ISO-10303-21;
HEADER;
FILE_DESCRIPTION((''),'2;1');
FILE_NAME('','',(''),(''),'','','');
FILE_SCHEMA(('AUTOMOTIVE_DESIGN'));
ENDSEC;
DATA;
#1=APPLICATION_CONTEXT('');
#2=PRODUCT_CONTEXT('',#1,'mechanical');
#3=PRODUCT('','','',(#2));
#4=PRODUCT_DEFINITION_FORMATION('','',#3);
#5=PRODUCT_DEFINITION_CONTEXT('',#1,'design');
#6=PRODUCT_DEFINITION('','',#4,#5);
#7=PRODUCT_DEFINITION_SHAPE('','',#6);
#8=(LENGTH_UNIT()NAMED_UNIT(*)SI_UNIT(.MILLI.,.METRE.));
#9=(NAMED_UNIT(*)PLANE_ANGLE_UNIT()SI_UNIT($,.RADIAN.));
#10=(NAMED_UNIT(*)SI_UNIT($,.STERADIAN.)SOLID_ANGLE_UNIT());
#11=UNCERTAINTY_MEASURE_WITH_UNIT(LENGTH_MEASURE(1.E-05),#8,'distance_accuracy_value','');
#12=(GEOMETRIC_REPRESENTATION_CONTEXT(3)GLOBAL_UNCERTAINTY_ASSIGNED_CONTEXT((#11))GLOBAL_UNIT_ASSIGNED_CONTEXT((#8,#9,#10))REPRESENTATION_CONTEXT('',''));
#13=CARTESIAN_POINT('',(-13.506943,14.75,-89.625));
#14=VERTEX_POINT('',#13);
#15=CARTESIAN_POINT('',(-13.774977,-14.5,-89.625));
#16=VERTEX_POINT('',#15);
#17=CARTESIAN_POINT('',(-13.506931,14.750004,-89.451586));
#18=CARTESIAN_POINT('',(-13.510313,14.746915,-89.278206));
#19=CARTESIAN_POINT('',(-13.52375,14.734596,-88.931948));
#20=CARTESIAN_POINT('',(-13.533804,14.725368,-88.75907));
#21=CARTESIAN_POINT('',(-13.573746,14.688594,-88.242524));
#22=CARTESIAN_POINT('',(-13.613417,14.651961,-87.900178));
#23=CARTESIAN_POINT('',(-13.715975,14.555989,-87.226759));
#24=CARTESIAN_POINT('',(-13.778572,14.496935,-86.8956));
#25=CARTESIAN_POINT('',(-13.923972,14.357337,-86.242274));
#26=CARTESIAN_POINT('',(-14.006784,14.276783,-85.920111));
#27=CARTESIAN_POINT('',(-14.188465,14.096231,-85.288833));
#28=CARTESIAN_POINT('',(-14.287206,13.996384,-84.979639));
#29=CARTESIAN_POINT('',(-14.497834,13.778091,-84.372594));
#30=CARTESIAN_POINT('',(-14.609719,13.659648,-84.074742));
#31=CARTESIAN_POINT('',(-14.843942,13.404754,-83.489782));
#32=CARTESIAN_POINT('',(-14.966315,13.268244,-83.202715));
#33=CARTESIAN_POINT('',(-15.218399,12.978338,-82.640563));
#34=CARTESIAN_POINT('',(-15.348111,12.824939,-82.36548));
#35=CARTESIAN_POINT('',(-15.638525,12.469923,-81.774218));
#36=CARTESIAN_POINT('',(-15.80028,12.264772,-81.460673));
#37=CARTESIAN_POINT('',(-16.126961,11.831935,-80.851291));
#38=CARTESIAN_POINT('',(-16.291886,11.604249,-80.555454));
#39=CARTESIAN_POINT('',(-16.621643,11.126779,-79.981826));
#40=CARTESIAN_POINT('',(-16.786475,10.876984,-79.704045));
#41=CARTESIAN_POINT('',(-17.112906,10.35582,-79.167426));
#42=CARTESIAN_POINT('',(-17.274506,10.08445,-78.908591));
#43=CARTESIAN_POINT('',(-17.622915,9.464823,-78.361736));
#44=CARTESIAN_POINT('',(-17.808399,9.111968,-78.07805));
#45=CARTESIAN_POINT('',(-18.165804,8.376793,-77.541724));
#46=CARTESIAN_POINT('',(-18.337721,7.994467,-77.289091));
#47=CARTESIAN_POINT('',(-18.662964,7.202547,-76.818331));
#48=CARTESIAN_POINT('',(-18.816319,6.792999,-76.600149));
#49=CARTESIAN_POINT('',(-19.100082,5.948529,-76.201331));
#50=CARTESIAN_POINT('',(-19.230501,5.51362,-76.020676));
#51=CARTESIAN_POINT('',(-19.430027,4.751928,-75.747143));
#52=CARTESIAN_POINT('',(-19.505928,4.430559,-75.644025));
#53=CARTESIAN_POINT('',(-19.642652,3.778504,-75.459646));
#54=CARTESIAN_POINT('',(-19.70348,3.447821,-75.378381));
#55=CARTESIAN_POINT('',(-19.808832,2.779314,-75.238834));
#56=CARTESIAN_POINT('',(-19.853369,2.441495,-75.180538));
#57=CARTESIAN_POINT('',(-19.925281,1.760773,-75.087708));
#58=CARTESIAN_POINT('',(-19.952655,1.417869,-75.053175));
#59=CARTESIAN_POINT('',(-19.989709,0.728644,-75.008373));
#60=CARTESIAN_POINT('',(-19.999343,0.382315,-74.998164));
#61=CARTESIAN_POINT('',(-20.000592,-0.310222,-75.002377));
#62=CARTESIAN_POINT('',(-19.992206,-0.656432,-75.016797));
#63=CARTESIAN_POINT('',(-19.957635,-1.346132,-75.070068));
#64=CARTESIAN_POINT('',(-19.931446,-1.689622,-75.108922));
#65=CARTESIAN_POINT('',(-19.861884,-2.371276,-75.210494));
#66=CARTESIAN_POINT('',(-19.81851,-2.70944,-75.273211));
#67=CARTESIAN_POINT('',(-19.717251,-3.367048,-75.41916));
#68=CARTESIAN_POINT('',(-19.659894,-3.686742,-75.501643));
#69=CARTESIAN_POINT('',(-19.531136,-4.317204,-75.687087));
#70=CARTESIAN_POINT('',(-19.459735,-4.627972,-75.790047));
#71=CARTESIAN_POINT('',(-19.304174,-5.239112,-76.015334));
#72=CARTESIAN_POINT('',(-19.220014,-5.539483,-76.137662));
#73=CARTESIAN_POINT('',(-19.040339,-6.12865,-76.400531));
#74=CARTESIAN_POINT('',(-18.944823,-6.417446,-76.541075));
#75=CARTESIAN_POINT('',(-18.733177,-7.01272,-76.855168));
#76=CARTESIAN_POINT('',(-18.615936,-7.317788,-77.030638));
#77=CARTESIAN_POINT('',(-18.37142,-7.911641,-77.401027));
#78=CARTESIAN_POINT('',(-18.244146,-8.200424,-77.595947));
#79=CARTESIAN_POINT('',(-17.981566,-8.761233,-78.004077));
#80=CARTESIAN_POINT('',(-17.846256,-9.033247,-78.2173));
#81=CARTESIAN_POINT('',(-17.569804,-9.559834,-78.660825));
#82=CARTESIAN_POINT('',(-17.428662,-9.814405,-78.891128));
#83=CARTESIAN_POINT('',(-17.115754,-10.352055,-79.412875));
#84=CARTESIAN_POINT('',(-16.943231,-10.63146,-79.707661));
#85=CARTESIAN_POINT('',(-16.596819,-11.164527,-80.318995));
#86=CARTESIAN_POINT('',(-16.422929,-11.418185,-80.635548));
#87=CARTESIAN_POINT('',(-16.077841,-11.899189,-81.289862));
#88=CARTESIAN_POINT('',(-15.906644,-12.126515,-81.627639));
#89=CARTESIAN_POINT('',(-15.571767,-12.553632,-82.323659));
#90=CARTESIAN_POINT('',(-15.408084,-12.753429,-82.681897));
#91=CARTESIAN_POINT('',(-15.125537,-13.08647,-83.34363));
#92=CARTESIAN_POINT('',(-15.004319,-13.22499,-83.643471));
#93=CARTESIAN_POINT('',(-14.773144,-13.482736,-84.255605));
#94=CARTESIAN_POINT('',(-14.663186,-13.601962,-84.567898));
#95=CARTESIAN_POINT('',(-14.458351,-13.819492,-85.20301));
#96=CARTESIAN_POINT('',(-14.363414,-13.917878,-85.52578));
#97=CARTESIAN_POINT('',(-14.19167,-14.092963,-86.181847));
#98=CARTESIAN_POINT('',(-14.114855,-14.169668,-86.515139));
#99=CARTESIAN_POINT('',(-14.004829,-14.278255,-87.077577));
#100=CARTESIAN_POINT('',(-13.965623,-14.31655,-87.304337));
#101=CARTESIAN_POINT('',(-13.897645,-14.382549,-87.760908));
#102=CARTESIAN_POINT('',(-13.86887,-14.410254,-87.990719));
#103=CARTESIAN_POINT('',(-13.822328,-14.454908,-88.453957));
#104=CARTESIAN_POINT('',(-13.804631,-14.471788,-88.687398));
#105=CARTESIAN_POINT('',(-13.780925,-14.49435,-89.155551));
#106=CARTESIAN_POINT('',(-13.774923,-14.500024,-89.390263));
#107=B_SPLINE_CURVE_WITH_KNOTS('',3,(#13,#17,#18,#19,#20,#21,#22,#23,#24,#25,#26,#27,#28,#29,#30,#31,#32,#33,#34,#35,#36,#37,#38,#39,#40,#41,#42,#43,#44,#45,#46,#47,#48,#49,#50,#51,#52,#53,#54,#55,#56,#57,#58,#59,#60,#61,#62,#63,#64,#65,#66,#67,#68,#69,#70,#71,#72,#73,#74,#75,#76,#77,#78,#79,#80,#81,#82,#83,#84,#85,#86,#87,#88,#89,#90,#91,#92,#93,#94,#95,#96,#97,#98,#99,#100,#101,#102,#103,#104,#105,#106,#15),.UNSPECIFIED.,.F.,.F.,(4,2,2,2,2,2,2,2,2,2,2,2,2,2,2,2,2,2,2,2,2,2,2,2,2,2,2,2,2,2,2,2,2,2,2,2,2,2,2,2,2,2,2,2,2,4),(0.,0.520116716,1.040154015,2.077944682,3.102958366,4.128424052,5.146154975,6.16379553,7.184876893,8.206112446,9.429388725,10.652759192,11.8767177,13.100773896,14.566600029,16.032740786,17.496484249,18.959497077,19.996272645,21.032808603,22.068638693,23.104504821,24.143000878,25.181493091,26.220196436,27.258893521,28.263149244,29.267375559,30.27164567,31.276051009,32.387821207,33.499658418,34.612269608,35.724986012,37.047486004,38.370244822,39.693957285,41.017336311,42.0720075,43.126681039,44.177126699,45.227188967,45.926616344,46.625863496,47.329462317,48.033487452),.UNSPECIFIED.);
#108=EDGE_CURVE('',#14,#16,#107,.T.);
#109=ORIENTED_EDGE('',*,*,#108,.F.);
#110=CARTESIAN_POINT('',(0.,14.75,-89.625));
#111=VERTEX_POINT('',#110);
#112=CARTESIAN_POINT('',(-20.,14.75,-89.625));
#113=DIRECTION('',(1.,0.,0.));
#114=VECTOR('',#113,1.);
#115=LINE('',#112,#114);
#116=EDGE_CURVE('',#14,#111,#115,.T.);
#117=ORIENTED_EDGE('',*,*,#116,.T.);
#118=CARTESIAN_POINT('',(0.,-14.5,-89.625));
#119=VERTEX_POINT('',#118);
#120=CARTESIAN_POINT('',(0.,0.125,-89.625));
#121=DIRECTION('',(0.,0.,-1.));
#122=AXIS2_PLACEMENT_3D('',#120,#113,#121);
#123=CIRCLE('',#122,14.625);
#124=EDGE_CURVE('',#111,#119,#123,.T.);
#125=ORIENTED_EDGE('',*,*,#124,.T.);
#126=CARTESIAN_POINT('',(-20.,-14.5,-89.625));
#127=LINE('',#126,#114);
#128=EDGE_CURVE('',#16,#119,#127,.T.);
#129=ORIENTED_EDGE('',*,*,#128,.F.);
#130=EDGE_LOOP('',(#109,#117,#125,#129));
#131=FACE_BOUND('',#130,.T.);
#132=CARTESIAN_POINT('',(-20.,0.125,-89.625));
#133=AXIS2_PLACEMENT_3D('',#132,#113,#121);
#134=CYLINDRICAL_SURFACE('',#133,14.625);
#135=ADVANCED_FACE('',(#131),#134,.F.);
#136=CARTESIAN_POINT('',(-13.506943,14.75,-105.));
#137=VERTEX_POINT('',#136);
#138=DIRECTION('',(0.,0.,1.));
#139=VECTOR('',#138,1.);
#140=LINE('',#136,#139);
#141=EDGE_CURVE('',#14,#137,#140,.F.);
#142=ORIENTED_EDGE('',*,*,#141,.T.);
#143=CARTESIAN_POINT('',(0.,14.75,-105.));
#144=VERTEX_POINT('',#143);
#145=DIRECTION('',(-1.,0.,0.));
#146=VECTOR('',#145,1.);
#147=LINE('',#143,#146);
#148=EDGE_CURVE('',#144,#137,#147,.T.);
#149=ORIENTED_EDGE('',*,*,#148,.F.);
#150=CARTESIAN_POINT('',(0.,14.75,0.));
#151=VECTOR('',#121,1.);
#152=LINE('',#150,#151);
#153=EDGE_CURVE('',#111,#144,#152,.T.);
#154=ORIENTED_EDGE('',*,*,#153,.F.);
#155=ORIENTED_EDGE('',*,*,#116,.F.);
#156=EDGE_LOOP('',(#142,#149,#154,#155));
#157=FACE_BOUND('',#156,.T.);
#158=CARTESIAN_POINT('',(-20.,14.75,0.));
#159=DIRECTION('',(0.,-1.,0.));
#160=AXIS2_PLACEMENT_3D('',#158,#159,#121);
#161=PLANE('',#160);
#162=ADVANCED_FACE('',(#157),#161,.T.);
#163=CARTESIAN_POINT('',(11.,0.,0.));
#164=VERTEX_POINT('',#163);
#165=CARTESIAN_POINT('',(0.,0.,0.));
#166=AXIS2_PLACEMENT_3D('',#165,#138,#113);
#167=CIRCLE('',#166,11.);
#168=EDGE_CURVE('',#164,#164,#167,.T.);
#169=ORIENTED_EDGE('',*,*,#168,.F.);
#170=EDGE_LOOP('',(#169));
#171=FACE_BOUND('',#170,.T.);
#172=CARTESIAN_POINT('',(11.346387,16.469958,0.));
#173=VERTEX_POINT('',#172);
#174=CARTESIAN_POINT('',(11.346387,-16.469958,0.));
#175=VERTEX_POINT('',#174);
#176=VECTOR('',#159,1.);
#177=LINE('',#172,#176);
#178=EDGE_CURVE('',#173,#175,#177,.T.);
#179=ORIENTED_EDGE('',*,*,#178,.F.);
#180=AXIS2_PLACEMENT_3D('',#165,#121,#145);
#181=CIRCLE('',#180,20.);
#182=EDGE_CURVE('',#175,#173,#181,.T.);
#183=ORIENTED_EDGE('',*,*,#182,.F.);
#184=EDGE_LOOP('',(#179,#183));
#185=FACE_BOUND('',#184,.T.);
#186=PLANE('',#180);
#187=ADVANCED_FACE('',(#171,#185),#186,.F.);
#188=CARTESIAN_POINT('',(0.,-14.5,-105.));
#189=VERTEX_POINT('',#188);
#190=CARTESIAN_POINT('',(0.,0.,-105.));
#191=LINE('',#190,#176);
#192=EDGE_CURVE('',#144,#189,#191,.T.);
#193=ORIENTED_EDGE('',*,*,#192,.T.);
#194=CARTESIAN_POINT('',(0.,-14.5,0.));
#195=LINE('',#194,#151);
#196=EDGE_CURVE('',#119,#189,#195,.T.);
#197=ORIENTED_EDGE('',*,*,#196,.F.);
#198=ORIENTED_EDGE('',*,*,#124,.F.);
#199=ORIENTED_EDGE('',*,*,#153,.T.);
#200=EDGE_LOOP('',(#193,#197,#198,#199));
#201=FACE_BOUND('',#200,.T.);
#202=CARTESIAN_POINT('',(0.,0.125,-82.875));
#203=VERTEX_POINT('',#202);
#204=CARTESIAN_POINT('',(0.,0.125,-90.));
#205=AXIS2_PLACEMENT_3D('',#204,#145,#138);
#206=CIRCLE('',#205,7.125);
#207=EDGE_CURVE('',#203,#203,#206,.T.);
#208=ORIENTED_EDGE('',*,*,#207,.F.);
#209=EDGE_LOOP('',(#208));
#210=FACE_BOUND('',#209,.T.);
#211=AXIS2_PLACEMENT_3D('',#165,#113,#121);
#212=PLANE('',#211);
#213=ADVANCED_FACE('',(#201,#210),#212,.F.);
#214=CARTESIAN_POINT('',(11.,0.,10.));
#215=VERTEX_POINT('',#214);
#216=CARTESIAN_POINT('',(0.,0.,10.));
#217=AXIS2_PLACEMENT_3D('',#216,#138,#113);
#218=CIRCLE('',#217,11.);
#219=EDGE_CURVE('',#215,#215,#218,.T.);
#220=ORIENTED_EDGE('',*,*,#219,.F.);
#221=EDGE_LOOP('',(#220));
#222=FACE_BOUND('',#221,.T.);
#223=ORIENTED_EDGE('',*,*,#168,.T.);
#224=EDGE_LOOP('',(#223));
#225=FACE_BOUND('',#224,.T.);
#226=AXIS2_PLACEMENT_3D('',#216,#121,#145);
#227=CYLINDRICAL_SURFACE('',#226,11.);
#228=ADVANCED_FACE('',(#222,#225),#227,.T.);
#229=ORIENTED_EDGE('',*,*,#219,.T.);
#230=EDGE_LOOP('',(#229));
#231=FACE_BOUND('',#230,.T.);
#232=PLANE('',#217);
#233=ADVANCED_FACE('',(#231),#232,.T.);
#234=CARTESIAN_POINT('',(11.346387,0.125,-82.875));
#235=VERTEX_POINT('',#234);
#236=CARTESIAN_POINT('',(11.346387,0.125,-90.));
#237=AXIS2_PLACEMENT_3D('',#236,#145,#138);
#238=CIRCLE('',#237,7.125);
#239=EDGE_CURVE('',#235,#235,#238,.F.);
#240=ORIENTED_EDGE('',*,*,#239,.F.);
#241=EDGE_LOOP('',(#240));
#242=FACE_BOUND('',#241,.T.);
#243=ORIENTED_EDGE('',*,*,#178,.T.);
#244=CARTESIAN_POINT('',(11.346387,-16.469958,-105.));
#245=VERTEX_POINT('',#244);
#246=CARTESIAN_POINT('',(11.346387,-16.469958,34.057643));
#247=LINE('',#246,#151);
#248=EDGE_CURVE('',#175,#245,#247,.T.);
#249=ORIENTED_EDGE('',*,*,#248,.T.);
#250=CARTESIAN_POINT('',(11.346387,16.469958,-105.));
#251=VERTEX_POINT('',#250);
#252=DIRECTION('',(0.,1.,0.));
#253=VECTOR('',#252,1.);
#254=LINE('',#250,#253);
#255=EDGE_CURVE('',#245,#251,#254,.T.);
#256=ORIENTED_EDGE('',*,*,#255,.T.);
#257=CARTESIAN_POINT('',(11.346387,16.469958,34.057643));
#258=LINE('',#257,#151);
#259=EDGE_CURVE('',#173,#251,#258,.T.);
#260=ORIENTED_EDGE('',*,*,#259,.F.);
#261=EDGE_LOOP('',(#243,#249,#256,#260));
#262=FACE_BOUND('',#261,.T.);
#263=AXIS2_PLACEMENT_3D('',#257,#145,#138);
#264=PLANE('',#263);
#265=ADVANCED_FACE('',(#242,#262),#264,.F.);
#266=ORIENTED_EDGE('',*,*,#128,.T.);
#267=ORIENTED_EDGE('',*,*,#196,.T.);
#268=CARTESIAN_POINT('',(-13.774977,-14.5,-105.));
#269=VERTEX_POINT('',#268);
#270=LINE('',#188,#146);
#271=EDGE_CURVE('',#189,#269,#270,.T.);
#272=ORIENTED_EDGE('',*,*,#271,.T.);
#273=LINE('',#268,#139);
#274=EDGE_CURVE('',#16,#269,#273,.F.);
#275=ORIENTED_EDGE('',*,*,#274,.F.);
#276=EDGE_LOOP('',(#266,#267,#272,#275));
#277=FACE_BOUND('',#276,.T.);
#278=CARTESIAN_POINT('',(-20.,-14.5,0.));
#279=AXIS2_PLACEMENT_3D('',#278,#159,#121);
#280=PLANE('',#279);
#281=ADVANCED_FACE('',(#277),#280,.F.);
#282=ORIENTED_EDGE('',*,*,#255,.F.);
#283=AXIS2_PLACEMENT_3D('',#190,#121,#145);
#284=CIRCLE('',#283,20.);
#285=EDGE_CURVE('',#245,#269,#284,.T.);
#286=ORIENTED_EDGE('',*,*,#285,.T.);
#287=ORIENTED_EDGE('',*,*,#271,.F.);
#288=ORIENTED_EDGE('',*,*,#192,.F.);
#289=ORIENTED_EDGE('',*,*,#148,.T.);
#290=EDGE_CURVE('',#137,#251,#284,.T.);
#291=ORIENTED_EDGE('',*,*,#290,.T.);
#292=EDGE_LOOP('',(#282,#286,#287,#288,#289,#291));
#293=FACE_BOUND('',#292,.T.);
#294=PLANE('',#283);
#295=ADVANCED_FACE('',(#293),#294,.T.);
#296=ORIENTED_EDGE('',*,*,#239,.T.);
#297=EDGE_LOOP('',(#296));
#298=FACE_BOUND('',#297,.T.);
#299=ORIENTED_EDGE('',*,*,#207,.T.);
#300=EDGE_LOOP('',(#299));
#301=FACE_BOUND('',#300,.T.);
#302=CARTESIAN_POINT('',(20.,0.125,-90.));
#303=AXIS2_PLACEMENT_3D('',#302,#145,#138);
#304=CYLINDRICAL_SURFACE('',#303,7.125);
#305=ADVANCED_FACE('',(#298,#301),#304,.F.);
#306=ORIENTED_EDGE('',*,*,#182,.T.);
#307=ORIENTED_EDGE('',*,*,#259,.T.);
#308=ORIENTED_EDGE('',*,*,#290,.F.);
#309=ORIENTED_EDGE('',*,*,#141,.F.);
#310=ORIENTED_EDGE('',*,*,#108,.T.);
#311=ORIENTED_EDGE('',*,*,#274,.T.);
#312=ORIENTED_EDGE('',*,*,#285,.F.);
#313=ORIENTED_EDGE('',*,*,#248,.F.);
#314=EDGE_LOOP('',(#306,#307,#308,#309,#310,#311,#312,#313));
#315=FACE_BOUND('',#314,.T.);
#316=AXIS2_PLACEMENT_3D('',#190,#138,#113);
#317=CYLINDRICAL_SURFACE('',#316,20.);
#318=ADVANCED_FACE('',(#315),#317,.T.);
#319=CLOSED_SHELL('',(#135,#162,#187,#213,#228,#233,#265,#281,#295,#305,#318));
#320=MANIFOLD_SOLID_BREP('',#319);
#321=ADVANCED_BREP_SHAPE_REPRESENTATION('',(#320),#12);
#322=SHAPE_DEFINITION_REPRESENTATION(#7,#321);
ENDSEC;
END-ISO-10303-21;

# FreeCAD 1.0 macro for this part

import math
import FreeCAD as App
import Part
import Sketcher
from FreeCAD import Vector

doc = App.newDocument("Part")
params = doc.addObject("Spreadsheet::Sheet", "Params")
for row, (alias, value) in enumerate([
    ("sketch1_diameter", "22 mm"),
    ("pad1_length", "10 mm"),
    ("sketch2_diameter", "40 mm"),
    ("pad2_length", "105 mm"),
    ("sketch3_height", "50 mm"),
    ("sketch4_diameter", "14.25 mm"),
    ("sketch5_radius", "20 mm"),
    ("pocket3_length", "105 mm"),
], start=1):
    params.set(f"A{row}", alias)
    params.set(f"B{row}", "=" + value)
    params.setAlias(f"B{row}", alias)

body = doc.addObject("PartDesign::Body", "Body")

# Sketch on XY plane
sketch1 = doc.addObject("Sketcher::SketchObject", "Sketch")
body.addObject(sketch1)
sketch1.AttachmentSupport = (doc.XY_Plane, [""])
sketch1.MapMode = "FlatFace"
sketch1.addGeometry(Part.Circle(Vector(0, 0, 0), Vector(0, 0, 1), 11), False)
sketch1.addConstraint(Sketcher.Constraint("Coincident", 0, 3, -1, 1))
sketch1.addConstraint(Sketcher.Constraint("Diameter", 0, 22.0))
sketch1.setExpression("Constraints[1]", "Params.sketch1_diameter")
pad1 = doc.addObject("PartDesign::Pad", "Pad")
body.addObject(pad1)
pad1.Profile = sketch1
pad1.setExpression("Length", "Params.pad1_length")

# Sketch on XY plane
sketch2 = doc.addObject("Sketcher::SketchObject", "Sketch001")
body.addObject(sketch2)
sketch2.AttachmentSupport = (doc.XY_Plane, [""])
sketch2.MapMode = "FlatFace"
sketch2.addGeometry(Part.Circle(Vector(0, 0, 0), Vector(0, 0, 1), 20), False)
sketch2.addConstraint(Sketcher.Constraint("Coincident", 0, 3, -1, 1))
sketch2.addConstraint(Sketcher.Constraint("Diameter", 0, 40.0))
sketch2.setExpression("Constraints[1]", "Params.sketch2_diameter")
pad2 = doc.addObject("PartDesign::Pad", "Pad001")
body.addObject(pad2)
pad2.Profile = sketch2
pad2.setExpression("Length", "Params.pad2_length")
pad2.Reversed = True

# Sketch on YZ plane
sketch3 = doc.addObject("Sketcher::SketchObject", "Sketch002")
body.addObject(sketch3)
sketch3.AttachmentSupport = (doc.YZ_Plane, [""])
sketch3.MapMode = "FlatFace"
sketch3.addGeometry(Part.LineSegment(Vector(14.75, -139.625, 0), Vector(14.75, -89.625, 0)), False)
sketch3.addGeometry(Part.ArcOfCircle(Part.Circle(Vector(0.125, -89.625, 0), Vector(0, 0, 1), 14.625), math.radians(0), math.radians(180)), False)
sketch3.addGeometry(Part.LineSegment(Vector(-14.5, -89.625, 0), Vector(-14.5, -139.625, 0)), False)
sketch3.addGeometry(Part.LineSegment(Vector(-14.5, -139.625, 0), Vector(14.75, -139.625, 0)), False)
sketch3.addConstraint(Sketcher.Constraint("Tangent", 0, 2, 1, 1))
sketch3.addConstraint(Sketcher.Constraint("Tangent", 1, 2, 2, 1))
sketch3.addConstraint(Sketcher.Constraint("Coincident", 2, 2, 3, 1))
sketch3.addConstraint(Sketcher.Constraint("Coincident", 3, 2, 0, 1))
sketch3.addConstraint(Sketcher.Constraint("Vertical", 0))
sketch3.addConstraint(Sketcher.Constraint("Vertical", 2))
sketch3.addConstraint(Sketcher.Constraint("Horizontal", 3))
sketch3.addConstraint(Sketcher.Constraint("DistanceY", 0, 1, 0, 2, 50.0))
sketch3.addConstraint(Sketcher.Constraint("Radius", 1, 14.625))
sketch3.addConstraint(Sketcher.Constraint("DistanceX", 1, 2, -1, 1, 14.5))
sketch3.addConstraint(Sketcher.Constraint("DistanceY", 1, 3, -1, 1, 89.625))
sketch3.setExpression("Constraints[7]", "Params.sketch3_height")
pocket1 = doc.addObject("PartDesign::Pocket", "Pocket")
body.addObject(pocket1)
pocket1.Profile = sketch3
pocket1.Type = "ThroughAll"

# Sketch on YZ plane
sketch4 = doc.addObject("Sketcher::SketchObject", "Sketch003")
body.addObject(sketch4)
sketch4.AttachmentSupport = (doc.YZ_Plane, [""])
sketch4.MapMode = "FlatFace"
sketch4.addGeometry(Part.Circle(Vector(0.125, -90, 0), Vector(0, 0, 1), 7.125), False)
sketch4.addConstraint(Sketcher.Constraint("Diameter", 0, 14.25))
sketch4.addConstraint(Sketcher.Constraint("DistanceY", 0, 3, -1, 1, 90.0))
sketch4.addConstraint(Sketcher.Constraint("DistanceX", -1, 1, 0, 3, 0.125))
sketch4.setExpression("Constraints[0]", "Params.sketch4_diameter")
pocket2 = doc.addObject("PartDesign::Pocket", "Pocket001")
body.addObject(pocket2)
pocket2.Profile = sketch4
pocket2.Type = "ThroughAll"
pocket2.Reversed = True

# Sketch on XY plane
sketch5 = doc.addObject("Sketcher::SketchObject", "Sketch004")
body.addObject(sketch5)
sketch5.AttachmentSupport = (doc.XY_Plane, [""])
sketch5.MapMode = "FlatFace"
sketch5.addGeometry(Part.LineSegment(Vector(11.346387, -16.469958, 0), Vector(11.346387, 16.469958, 0)), False)
sketch5.addGeometry(Part.ArcOfCircle(Part.Circle(Vector(0, 0, 0), Vector(0, 0, 1), 20), math.radians(-55.436493), math.radians(55.436493)), False)
sketch5.addConstraint(Sketcher.Constraint("Coincident", 0, 1, 1, 1))
sketch5.addConstraint(Sketcher.Constraint("Coincident", 1, 2, 0, 2))
sketch5.addConstraint(Sketcher.Constraint("Vertical", 0))
sketch5.addConstraint(Sketcher.Constraint("Coincident", 1, 3, -1, 1))
sketch5.addConstraint(Sketcher.Constraint("Radius", 1, 20.0))
sketch5.addConstraint(Sketcher.Constraint("DistanceY", 0, 1, 0, 2, 32.939915))
sketch5.setExpression("Constraints[4]", "Params.sketch5_radius")
pocket3 = doc.addObject("PartDesign::Pocket", "Pocket002")
body.addObject(pocket3)
pocket3.Profile = sketch5
pocket3.setExpression("Length", "Params.pocket3_length")

doc.recompute()
